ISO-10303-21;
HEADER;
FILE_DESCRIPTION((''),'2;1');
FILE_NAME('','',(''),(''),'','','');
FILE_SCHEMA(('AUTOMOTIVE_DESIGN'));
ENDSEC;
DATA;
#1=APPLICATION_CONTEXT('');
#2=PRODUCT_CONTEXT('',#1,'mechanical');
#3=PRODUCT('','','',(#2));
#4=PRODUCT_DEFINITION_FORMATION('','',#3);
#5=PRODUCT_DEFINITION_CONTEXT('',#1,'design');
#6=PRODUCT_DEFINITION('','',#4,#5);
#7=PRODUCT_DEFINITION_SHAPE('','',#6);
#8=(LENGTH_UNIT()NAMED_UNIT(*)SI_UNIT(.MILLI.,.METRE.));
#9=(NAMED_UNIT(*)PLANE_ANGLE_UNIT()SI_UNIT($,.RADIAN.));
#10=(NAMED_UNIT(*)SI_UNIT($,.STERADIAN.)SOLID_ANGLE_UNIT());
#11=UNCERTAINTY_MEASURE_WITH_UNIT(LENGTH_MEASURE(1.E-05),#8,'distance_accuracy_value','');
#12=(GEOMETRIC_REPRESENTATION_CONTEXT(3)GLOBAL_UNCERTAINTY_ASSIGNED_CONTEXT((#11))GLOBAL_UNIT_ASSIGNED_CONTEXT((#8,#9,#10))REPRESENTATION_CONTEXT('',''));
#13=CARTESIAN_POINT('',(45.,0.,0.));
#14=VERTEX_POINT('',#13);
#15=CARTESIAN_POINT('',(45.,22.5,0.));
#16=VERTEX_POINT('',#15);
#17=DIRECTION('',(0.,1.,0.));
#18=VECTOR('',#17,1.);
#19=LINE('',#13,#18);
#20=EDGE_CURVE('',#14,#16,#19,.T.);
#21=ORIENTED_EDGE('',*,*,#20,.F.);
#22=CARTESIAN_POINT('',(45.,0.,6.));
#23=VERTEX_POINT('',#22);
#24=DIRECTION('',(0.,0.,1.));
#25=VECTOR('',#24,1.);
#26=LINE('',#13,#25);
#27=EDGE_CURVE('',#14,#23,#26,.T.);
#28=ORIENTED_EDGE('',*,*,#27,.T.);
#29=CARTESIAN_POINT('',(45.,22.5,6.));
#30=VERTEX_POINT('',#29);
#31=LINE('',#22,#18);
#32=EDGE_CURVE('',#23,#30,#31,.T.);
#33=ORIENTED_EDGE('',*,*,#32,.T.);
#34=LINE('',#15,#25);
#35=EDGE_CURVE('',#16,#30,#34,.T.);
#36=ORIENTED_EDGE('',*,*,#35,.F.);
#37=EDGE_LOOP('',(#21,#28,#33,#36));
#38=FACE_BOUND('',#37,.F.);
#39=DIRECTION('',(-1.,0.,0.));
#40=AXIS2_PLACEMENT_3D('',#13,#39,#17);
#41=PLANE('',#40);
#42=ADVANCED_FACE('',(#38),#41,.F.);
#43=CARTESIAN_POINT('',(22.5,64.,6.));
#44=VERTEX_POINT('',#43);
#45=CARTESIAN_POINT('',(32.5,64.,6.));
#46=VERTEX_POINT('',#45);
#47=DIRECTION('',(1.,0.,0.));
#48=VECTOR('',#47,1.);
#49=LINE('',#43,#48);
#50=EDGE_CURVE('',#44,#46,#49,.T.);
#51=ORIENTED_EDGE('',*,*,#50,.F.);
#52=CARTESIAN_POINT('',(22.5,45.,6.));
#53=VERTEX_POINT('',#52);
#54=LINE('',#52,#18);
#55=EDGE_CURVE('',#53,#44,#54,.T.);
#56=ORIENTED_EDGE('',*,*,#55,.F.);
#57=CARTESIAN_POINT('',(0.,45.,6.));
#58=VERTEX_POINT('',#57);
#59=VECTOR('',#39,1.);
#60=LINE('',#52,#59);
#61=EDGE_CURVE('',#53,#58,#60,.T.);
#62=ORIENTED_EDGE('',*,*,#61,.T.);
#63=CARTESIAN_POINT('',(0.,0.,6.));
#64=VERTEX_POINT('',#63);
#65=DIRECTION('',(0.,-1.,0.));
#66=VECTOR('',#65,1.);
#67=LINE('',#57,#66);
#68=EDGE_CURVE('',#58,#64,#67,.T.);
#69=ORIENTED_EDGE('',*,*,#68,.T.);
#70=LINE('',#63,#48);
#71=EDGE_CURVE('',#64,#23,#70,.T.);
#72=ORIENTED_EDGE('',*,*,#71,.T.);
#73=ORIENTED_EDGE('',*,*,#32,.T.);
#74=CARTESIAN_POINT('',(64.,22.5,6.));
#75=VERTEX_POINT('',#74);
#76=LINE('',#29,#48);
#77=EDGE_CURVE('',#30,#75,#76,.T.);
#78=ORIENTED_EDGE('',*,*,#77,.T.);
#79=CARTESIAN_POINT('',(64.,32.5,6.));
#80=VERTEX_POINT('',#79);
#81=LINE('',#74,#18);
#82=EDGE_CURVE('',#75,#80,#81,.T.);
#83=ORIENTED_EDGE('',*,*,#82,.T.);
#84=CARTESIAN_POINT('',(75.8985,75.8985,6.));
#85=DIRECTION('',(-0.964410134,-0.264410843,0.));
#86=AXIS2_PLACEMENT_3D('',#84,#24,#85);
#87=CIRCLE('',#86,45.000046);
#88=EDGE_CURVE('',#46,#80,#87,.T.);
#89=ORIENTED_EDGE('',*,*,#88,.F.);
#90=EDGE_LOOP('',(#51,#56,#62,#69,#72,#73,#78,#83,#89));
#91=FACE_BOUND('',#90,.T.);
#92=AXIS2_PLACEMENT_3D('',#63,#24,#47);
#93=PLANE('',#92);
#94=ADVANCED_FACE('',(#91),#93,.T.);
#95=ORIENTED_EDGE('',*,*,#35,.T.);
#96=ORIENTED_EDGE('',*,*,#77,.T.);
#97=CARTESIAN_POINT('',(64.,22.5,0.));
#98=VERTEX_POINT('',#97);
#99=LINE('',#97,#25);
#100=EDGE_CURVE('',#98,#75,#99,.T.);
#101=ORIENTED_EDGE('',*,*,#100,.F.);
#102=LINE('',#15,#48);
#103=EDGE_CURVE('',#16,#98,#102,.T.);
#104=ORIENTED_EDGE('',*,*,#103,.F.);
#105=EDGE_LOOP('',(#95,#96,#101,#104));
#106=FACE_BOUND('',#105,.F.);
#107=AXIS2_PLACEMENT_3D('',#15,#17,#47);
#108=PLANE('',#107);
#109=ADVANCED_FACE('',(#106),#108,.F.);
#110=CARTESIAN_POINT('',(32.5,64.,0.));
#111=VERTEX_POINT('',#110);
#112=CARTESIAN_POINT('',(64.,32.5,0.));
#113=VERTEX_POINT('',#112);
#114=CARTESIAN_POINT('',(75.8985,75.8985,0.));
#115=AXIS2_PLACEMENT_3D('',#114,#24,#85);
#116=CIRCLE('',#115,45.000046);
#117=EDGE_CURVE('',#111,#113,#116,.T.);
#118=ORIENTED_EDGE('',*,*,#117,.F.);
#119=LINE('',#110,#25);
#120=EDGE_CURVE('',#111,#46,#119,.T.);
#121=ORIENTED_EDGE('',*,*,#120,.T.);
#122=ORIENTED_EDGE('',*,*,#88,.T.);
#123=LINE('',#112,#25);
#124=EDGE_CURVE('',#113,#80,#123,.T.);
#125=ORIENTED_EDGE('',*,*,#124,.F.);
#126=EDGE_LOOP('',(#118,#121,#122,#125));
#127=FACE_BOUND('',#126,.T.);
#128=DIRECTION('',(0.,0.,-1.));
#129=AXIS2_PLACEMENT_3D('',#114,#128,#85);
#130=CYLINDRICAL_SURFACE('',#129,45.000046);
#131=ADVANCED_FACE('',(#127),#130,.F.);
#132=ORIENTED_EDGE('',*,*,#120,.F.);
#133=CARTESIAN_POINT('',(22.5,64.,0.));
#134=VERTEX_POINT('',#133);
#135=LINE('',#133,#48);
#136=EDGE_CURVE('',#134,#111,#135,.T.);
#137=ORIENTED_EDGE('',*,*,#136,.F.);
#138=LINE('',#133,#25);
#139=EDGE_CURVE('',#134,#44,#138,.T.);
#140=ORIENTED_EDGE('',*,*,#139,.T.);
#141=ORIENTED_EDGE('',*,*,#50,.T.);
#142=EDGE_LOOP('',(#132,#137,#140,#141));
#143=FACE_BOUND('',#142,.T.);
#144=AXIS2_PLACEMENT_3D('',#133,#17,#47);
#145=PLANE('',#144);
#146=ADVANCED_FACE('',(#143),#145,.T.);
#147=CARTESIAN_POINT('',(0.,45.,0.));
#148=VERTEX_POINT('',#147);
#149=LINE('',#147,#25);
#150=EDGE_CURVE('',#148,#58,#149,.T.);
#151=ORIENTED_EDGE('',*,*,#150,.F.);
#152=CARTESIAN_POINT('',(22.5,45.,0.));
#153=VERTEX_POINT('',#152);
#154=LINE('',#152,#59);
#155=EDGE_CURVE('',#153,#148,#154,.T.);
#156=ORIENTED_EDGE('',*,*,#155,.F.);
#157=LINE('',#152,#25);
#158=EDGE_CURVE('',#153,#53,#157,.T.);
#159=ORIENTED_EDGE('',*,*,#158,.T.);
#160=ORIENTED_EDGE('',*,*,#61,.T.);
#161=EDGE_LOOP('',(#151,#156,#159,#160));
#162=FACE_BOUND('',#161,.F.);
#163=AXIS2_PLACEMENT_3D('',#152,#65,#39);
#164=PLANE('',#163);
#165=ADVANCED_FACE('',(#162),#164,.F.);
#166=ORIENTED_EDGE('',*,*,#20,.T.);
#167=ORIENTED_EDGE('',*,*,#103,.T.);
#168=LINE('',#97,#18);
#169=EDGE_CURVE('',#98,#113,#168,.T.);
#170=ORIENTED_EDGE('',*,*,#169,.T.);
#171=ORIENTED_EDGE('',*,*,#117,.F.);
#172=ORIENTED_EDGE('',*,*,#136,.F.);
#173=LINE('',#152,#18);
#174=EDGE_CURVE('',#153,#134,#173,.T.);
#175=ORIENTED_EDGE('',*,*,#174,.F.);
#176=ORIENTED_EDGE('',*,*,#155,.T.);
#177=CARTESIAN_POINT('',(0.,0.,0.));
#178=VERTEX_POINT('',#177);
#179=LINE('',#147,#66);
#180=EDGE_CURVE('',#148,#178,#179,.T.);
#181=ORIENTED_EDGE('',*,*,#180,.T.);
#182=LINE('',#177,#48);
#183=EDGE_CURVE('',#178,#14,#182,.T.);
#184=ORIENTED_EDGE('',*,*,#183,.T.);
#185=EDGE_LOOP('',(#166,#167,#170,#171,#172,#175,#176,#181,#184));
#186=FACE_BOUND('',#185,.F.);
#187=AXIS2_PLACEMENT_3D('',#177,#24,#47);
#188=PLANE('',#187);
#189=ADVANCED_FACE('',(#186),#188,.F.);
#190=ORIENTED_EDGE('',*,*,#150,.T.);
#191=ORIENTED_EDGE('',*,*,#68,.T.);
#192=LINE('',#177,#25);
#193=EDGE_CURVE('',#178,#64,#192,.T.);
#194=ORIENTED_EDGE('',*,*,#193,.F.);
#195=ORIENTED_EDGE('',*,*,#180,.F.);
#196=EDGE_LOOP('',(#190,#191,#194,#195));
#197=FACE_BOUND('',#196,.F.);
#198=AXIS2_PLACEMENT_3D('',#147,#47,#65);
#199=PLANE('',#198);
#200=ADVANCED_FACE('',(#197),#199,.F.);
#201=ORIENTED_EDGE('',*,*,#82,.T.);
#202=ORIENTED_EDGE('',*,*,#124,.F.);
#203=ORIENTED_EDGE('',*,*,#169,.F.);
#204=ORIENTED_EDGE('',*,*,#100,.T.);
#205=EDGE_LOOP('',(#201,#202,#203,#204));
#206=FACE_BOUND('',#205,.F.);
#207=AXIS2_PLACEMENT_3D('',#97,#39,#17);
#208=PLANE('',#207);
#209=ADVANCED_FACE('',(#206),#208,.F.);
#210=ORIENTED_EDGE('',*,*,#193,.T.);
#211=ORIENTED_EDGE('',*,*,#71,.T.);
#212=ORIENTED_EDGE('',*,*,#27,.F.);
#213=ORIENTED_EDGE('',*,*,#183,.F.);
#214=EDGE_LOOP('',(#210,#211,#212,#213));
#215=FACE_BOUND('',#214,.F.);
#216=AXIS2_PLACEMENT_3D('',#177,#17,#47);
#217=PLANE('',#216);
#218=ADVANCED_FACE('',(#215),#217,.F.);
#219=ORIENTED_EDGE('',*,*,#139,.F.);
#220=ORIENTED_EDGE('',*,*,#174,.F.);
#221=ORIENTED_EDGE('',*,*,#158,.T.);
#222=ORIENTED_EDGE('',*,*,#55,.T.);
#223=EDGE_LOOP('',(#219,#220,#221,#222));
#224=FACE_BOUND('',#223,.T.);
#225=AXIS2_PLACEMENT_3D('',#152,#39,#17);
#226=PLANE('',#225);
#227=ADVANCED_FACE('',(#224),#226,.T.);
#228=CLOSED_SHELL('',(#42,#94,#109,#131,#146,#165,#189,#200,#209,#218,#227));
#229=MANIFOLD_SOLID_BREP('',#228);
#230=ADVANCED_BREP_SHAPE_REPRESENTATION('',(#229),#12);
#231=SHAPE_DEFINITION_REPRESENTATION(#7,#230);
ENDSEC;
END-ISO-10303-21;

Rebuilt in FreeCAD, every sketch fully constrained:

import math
import FreeCAD as App
import Part
import Sketcher

doc = App.newDocument("Part")
body = doc.addObject("PartDesign::Body", "Body")

# Sketch on XY plane
sketch1 = doc.addObject("Sketcher::SketchObject", "Sketch")
body.addObject(sketch1)
sketch1.AttachmentSupport = (doc.XY_Plane, [""])
sketch1.MapMode = "FlatFace"
sketch1.addGeometry([
    Part.LineSegment(App.Vector(22, 64, 0), App.Vector(22, 45, 0)),  # 0
    Part.LineSegment(App.Vector(22, 45, 0), App.Vector(0, 45, 0)),  # 1
    Part.LineSegment(App.Vector(0, 45, 0), App.Vector(0, 0, 0)),  # 2
    Part.LineSegment(App.Vector(0, 0, 0), App.Vector(45, 0, 0)),  # 3
    Part.LineSegment(App.Vector(45, 0, 0), App.Vector(45, 22, 0)),  # 4
    Part.LineSegment(App.Vector(45, 22, 0), App.Vector(64, 22, 0)),  # 5
    Part.LineSegment(App.Vector(64, 22, 0), App.Vector(64, 32, 0)),  # 6
    Part.ArcOfCircle(Part.Circle(App.Vector(76, 76, 0), App.Vector(0, 0, 1), 45), math.radians(-165), math.radians(-105)),  # 7
    Part.LineSegment(App.Vector(32, 64, 0), App.Vector(22, 64, 0)),  # 8
], False)
sketch1.addConstraint([
    Sketcher.Constraint("Coincident", 0, 2, 1, 1),
    Sketcher.Constraint("Coincident", 1, 2, 2, 1),
    Sketcher.Constraint("Coincident", 2, 2, 3, 1),
    Sketcher.Constraint("Coincident", 3, 2, 4, 1),
    Sketcher.Constraint("Coincident", 4, 2, 5, 1),
    Sketcher.Constraint("Coincident", 5, 2, 6, 1),
    Sketcher.Constraint("Coincident", 6, 2, 7, 2),
    Sketcher.Constraint("Coincident", 7, 1, 8, 1),
    Sketcher.Constraint("Coincident", 8, 2, 0, 1),
    Sketcher.Constraint("Vertical", 0),
    Sketcher.Constraint("Horizontal", 1),
    Sketcher.Constraint("Vertical", 2),
    Sketcher.Constraint("Horizontal", 3),
    Sketcher.Constraint("Vertical", 4),
    Sketcher.Constraint("Horizontal", 5),
    Sketcher.Constraint("Vertical", 6),
    Sketcher.Constraint("Horizontal", 8),
    Sketcher.Constraint("Coincident", 2, 2, -1, 1),
    Sketcher.Constraint("Equal", 5, 0),
    Sketcher.Constraint("Equal", 3, 2),
    Sketcher.Constraint("Equal", 1, 4),
    Sketcher.Constraint("Equal", 8, 6),
    Sketcher.Constraint("Radius", 7, 45.0),
    Sketcher.Constraint("DistanceX", 3, 1, 3, 2, 45.0),
    Sketcher.Constraint("DistanceX", 5, 1, 5, 2, 19.0),
    Sketcher.Constraint("DistanceX", 8, 2, 8, 1, 10.0),
    Sketcher.Constraint("DistanceX", 1, 2, 1, 1, 22.5),
])
pad1 = doc.addObject("PartDesign::Pad", "Pad")
body.addObject(pad1)
pad1.Profile = sketch1
pad1.Length = 6

doc.recompute()
